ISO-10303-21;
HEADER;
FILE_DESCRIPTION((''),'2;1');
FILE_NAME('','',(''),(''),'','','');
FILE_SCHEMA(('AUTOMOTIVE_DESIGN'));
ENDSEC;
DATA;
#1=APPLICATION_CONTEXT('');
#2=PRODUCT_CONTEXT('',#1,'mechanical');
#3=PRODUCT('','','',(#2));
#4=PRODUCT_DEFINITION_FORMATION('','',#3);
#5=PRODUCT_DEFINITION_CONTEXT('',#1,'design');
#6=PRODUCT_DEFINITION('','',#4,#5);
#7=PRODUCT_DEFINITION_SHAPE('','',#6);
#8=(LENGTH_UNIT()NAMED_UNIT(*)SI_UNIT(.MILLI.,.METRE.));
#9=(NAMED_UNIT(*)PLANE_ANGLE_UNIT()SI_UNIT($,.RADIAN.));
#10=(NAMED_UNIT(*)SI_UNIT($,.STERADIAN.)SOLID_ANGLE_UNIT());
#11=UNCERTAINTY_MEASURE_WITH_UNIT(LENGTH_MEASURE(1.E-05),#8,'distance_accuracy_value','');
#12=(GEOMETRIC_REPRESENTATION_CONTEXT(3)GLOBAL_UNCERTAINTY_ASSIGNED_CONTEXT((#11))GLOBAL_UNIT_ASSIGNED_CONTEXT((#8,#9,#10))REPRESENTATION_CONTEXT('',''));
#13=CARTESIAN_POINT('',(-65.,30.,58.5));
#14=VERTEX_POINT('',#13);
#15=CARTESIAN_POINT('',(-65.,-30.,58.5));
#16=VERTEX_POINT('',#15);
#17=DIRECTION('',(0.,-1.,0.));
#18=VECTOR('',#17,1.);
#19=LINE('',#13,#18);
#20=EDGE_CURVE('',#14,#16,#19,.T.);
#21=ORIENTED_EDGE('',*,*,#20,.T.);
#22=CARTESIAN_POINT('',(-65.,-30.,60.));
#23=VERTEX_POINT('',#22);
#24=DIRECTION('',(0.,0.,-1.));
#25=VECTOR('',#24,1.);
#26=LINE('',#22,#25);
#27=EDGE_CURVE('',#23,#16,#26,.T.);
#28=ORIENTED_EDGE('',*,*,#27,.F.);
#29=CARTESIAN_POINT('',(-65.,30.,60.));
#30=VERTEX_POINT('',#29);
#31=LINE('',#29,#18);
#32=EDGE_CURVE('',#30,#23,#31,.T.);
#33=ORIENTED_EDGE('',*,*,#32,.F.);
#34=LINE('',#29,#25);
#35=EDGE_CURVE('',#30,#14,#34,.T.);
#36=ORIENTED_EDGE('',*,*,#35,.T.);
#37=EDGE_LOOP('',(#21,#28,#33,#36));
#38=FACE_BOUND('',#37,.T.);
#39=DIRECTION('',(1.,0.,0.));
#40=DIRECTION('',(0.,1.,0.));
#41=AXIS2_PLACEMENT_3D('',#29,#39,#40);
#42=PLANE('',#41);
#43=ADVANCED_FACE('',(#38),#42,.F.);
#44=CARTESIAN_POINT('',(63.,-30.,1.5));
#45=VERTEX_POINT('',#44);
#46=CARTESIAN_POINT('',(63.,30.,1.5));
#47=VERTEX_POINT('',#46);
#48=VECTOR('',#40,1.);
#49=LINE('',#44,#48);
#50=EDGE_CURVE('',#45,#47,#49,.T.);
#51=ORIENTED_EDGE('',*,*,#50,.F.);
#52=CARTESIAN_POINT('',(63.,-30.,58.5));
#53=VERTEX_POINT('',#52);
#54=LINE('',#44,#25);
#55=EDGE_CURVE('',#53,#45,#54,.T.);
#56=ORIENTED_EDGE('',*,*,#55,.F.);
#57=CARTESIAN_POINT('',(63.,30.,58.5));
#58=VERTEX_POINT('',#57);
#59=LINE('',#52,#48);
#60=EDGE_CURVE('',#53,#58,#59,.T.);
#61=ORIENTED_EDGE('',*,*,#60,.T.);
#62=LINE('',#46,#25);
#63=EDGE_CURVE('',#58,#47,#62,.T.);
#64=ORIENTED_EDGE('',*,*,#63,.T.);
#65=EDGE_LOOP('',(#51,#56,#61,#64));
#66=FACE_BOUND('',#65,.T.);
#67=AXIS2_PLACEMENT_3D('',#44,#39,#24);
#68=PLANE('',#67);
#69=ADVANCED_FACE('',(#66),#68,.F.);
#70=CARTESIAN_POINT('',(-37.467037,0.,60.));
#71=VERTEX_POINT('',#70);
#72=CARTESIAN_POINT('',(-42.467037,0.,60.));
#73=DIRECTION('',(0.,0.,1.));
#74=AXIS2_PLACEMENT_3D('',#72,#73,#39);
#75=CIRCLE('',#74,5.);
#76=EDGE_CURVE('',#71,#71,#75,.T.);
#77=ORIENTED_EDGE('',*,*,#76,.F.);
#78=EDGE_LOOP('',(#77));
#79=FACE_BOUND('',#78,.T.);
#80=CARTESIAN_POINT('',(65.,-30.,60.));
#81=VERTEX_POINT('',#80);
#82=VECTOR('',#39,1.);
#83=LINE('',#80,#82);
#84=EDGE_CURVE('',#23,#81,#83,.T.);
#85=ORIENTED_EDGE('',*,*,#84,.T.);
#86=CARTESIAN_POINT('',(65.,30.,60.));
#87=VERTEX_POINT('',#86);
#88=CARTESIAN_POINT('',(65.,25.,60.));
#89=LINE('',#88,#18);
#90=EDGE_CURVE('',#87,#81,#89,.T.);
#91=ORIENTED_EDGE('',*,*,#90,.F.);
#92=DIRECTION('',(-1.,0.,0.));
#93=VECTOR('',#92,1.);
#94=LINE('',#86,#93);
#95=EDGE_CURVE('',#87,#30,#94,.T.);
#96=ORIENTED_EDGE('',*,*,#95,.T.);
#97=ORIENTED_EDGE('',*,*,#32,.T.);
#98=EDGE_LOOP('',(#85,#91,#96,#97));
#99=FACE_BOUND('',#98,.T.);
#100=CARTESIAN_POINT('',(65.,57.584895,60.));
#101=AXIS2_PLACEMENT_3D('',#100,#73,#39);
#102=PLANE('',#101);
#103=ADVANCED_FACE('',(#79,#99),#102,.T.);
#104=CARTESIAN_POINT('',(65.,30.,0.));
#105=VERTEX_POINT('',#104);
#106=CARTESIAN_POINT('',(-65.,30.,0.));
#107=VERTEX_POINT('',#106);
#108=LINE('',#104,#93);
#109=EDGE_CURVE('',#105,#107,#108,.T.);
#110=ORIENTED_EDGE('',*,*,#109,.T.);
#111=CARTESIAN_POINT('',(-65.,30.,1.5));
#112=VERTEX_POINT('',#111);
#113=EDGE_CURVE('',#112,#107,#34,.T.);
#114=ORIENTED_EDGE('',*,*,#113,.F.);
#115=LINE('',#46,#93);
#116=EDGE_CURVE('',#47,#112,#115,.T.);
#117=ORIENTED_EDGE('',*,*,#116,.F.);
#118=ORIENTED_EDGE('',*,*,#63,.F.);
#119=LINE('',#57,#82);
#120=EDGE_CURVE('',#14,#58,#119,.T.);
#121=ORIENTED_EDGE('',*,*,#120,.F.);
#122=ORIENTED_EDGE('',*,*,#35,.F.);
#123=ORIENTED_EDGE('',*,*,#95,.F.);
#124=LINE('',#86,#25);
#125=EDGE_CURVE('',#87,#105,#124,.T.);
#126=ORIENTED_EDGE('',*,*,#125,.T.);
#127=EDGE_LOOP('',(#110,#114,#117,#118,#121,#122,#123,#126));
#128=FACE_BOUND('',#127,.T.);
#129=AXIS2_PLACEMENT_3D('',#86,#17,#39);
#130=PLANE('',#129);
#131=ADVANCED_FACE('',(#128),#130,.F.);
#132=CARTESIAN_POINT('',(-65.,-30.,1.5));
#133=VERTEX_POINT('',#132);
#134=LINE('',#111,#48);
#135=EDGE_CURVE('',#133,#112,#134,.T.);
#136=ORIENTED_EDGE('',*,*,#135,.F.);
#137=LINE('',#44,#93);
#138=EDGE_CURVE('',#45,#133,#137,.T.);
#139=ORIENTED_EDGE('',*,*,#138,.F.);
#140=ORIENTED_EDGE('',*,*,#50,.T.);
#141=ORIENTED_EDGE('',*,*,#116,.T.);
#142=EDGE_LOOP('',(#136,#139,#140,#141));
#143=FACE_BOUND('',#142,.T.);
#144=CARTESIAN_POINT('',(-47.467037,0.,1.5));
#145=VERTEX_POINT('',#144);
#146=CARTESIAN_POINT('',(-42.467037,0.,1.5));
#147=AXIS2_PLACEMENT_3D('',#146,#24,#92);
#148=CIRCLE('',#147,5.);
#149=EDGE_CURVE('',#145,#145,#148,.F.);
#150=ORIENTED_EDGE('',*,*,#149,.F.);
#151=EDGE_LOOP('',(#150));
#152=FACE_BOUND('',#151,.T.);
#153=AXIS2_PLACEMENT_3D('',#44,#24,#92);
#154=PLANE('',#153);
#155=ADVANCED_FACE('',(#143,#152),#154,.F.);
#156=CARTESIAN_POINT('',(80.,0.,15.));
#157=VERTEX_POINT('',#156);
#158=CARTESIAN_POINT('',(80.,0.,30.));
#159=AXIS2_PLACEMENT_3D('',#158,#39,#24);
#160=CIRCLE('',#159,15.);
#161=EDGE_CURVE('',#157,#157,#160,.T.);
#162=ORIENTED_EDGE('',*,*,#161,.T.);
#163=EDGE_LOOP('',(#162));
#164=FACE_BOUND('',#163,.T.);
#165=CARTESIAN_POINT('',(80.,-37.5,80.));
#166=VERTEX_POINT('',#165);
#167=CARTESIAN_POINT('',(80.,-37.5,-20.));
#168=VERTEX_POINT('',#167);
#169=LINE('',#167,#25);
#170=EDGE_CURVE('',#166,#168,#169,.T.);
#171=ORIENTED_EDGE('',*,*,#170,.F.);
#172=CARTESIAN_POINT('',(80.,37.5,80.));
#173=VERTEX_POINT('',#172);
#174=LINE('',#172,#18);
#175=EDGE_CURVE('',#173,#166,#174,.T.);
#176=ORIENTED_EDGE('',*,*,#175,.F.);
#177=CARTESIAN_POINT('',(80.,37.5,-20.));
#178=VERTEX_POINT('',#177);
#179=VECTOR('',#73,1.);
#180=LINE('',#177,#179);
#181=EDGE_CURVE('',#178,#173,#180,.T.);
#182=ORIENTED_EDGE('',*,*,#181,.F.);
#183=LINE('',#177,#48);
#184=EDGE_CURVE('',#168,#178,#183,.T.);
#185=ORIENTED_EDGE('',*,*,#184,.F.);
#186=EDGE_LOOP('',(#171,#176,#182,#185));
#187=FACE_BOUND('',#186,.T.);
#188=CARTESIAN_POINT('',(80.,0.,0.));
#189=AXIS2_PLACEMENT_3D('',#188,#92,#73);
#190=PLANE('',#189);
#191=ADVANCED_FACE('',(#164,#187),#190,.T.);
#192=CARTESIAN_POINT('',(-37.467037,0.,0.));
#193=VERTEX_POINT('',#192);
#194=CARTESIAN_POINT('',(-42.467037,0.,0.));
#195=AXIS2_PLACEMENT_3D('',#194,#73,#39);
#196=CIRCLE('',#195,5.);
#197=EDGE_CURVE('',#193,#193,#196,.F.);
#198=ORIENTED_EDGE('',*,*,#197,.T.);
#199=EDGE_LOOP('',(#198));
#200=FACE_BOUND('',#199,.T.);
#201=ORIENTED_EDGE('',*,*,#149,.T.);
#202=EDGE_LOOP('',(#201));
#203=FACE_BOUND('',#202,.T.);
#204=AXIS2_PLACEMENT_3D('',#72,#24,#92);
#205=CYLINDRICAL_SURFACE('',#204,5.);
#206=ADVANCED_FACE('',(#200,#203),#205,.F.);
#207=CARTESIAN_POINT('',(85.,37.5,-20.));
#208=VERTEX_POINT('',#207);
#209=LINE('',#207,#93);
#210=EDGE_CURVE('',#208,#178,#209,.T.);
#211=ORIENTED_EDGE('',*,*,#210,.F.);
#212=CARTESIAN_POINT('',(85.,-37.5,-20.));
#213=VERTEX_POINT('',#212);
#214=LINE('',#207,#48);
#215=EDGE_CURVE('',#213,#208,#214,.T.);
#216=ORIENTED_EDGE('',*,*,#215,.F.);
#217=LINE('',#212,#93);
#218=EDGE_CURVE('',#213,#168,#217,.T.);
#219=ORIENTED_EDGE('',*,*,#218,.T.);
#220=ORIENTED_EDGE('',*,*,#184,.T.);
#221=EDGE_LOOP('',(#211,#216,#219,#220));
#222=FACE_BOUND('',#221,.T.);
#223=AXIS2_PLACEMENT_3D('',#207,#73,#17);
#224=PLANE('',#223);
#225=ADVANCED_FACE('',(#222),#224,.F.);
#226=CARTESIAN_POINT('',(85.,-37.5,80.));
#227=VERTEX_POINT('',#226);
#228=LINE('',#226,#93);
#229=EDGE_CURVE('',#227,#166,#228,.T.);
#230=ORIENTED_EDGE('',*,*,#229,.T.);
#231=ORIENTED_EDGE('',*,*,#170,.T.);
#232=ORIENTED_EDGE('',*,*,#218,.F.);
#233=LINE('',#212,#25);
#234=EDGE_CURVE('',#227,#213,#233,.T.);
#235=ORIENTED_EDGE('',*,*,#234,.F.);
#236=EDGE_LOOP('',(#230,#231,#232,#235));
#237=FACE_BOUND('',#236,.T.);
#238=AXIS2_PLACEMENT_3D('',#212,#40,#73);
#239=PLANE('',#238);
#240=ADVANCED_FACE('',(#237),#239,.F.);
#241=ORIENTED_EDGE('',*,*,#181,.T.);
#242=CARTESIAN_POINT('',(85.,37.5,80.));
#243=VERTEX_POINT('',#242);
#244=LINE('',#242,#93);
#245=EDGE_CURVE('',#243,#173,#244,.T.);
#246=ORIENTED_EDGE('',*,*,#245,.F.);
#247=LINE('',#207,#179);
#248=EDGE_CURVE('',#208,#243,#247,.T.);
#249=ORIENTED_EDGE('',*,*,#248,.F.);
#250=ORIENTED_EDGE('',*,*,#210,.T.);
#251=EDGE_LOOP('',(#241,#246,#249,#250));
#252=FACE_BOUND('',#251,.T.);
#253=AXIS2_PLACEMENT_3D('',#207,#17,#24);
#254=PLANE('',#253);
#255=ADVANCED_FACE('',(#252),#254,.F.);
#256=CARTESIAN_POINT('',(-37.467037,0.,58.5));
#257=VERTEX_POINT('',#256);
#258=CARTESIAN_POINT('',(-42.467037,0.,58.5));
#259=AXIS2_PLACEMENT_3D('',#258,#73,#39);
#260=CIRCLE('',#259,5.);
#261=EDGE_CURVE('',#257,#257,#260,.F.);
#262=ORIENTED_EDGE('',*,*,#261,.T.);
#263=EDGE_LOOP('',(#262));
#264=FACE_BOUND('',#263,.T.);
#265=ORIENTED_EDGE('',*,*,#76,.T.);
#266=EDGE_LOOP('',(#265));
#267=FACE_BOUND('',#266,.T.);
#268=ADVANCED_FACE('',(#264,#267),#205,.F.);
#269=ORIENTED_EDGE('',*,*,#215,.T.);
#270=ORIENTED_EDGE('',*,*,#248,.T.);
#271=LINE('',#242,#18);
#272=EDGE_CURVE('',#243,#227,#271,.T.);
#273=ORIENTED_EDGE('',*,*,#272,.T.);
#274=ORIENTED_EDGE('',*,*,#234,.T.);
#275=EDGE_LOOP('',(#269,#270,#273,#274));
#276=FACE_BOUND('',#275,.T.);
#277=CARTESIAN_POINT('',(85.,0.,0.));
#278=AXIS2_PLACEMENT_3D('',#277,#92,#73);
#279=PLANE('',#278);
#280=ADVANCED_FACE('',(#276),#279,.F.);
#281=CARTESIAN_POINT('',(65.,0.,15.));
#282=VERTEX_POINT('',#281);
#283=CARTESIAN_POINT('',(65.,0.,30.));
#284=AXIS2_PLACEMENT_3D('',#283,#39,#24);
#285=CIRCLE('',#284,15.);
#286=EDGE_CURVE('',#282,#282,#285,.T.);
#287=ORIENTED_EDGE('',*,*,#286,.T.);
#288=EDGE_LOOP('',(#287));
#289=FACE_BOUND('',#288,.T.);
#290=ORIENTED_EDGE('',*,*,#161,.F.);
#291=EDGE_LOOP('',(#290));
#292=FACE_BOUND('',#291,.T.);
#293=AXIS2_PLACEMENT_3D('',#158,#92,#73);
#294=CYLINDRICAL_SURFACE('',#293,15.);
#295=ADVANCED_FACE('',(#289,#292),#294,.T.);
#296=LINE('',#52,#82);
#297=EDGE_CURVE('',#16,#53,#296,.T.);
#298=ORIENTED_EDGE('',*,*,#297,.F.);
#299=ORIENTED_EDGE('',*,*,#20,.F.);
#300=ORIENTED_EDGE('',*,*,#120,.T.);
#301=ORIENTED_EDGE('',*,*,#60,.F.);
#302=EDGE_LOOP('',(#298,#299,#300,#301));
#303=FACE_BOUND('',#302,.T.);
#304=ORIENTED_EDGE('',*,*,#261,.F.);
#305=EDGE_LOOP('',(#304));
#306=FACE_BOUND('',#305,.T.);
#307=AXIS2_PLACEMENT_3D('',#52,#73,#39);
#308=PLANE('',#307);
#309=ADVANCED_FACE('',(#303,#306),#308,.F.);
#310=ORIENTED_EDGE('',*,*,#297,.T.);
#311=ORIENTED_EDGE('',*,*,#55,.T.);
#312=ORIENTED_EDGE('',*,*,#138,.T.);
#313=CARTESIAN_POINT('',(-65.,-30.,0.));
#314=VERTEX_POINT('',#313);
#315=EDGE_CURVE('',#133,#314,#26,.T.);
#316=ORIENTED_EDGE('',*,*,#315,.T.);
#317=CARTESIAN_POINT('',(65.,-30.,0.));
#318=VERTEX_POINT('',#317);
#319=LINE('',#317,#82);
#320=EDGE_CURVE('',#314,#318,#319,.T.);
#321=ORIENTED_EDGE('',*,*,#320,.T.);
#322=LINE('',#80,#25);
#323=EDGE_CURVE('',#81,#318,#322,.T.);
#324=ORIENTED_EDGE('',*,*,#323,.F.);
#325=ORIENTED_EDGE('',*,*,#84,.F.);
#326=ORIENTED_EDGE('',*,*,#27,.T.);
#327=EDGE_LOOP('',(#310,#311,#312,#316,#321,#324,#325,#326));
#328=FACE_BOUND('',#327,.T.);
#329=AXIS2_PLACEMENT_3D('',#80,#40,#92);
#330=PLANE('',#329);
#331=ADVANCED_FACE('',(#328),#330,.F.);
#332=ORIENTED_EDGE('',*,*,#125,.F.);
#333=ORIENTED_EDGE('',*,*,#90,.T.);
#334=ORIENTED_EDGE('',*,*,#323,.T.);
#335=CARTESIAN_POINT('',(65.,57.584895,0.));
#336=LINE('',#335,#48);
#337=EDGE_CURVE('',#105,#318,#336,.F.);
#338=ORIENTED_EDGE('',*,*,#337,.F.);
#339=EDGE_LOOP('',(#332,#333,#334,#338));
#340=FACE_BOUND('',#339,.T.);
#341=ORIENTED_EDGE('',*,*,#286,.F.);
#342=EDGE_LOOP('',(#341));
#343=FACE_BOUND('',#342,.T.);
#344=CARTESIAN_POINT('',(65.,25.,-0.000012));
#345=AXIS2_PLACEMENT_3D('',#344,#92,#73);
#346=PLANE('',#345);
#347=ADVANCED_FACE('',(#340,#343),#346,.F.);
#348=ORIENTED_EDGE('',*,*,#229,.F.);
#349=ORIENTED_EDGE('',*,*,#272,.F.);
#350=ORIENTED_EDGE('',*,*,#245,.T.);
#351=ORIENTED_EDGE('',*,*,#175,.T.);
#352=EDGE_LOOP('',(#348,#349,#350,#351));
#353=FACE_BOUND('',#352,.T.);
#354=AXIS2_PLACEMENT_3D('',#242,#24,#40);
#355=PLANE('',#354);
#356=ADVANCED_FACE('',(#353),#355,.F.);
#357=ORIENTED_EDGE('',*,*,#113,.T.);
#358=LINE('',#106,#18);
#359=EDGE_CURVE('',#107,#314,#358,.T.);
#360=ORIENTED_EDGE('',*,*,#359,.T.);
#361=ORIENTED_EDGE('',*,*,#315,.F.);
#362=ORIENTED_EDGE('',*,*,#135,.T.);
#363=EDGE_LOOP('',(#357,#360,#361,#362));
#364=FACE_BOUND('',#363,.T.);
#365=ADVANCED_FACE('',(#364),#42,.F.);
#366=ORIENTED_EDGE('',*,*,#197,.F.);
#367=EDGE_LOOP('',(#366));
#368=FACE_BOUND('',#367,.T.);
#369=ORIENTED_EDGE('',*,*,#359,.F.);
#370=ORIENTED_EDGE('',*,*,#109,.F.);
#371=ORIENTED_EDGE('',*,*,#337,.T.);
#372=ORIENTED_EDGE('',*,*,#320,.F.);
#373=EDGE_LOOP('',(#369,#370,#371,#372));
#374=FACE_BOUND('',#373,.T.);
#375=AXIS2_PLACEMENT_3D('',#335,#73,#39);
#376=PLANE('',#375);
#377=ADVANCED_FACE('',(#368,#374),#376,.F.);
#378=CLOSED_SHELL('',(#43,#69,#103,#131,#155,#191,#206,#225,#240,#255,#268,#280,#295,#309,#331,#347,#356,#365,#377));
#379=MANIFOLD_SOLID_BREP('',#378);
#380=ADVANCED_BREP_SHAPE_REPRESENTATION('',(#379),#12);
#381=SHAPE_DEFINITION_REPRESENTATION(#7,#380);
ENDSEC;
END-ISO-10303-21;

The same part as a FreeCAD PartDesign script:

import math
import FreeCAD as App
import Part
import Sketcher

V = App.Vector
Q = App.Units.Quantity

doc = App.newDocument("Part")
body = doc.addObject("PartDesign::Body", "Body")

# Sketch on XY plane
sketch1 = doc.addObject("Sketcher::SketchObject", "Sketch")
body.addObject(sketch1)
sketch1.AttachmentSupport = (doc.XY_Plane, [""])
sketch1.MapMode = "FlatFace"
sketch1.addGeometry([
    Part.LineSegment(V(65, 30, 0), V(-65, 30, 0)),  # 0
    Part.LineSegment(V(-65, 30, 0), V(-65, -30, 0)),  # 1
    Part.LineSegment(V(-65, -30, 0), V(65, -30, 0)),  # 2
    Part.ArcOfCircle(Part.Circle(V(65, 57.584895, 0), V(0, 0, 1), 87.584895), math.radians(-90), math.radians(-41.107599)),  # 3
    Part.ArcOfCircle(Part.Circle(V(65, -57.584895, 0), V(0, 0, 1), 87.584895), math.radians(41.107599), math.radians(90)),  # 4
], False)
sketch1.addConstraint([
    Sketcher.Constraint("Coincident", 0, 2, 1, 1),
    Sketcher.Constraint("Coincident", 1, 2, 2, 1),
    Sketcher.Constraint("Tangent", 2, 2, 3, 1),
    Sketcher.Constraint("Coincident", 3, 2, 4, 1),
    Sketcher.Constraint("Tangent", 4, 2, 0, 1),
    Sketcher.Constraint("Horizontal", 0),
    Sketcher.Constraint("Vertical", 1),
    Sketcher.Constraint("Horizontal", 2),
    Sketcher.Constraint("Equal", 3, 4),
    Sketcher.Constraint("Symmetric", 0, 2, 2, 2, -1, 1),
    Sketcher.Constraint("PointOnObject", 3, 2, -1),
    Sketcher.Constraint("DistanceX", 0, 2, 0, 1, Q("130 mm")),
    Sketcher.Constraint("DistanceY", 1, 2, 1, 1, Q("60 mm")),
    Sketcher.Constraint("Radius", 3, Q("87.584895 mm")),
])
pad1 = doc.addObject("PartDesign::Pad", "Pad")
body.addObject(pad1)
pad1.Profile = sketch1
pad1.Length = 60

# Sketch on XY plane
sketch2 = doc.addObject("Sketcher::SketchObject", "Sketch001")
body.addObject(sketch2)
sketch2.AttachmentSupport = (doc.XY_Plane, [""])
sketch2.MapMode = "FlatFace"
sketch2.addGeometry([
    Part.LineSegment(V(65, 25, 0), V(65, -25, 0)),
    Part.ArcOfCircle(Part.Circle(V(65, 18.451597, 0), V(0, 0, 1), 43.451597), math.radians(-90), math.radians(-25.128332)),
    Part.ArcOfCircle(Part.Circle(V(65, -18.451597, 0), V(0, 0, 1), 43.451597), math.radians(25.128332), math.radians(90)),
], False)
sketch2.addConstraint([
    Sketcher.Constraint("Coincident", 0, 2, 1, 1),
    Sketcher.Constraint("Coincident", 1, 2, 2, 1),
    Sketcher.Constraint("Coincident", 2, 2, 0, 1),
    Sketcher.Constraint("Vertical", 0),
    Sketcher.Constraint("Equal", 1, 2),
    Sketcher.Constraint("Symmetric", 1, 3, 2, 3, -1),
    Sketcher.Constraint("Vertical", 2, 3, 0, 2),
    Sketcher.Constraint("DistanceY", 0, 2, 0, 1, Q("50 mm")),
    Sketcher.Constraint("DistanceX", -1, 1, 1, 3, Q("65 mm")),
    Sketcher.Constraint("Radius", 1, Q("43.451597 mm")),
])
pocket1 = doc.addObject("PartDesign::Pocket", "Pocket")
body.addObject(pocket1)
pocket1.Profile = sketch2
pocket1.Type = "ThroughAll"
pocket1.Midplane = True

# Sketch on XZ plane
sketch3 = doc.addObject("Sketcher::SketchObject", "Sketch002")
body.addObject(sketch3)
sketch3.AttachmentSupport = (doc.XZ_Plane, [""])
sketch3.MapMode = "FlatFace"
sketch3.addGeometry([
    Part.LineSegment(V(-63, 1.5, 0), V(-63, 58.5, 0)),
    Part.LineSegment(V(-63, 58.5, 0), V(63, 58.5, 0)),
    Part.LineSegment(V(63, 58.5, 0), V(63, 1.5, 0)),
    Part.LineSegment(V(63, 1.5, 0), V(-63, 1.5, 0)),
], False)
sketch3.addConstraint([
    Sketcher.Constraint("Coincident", 0, 2, 1, 1),
    Sketcher.Constraint("Coincident", 1, 2, 2, 1),
    Sketcher.Constraint("Coincident", 2, 2, 3, 1),
    Sketcher.Constraint("Coincident", 3, 2, 0, 1),
    Sketcher.Constraint("Vertical", 0),
    Sketcher.Constraint("Horizontal", 1),
    Sketcher.Constraint("Vertical", 2),
    Sketcher.Constraint("Horizontal", 3),
    Sketcher.Constraint("DistanceX", 1, 1, 1, 2, Q("126 mm")),
    Sketcher.Constraint("DistanceY", 0, 1, 0, 2, Q("57 mm")),
    Sketcher.Constraint("DistanceX", 0, 2, -1, 1, Q("63 mm")),
    Sketcher.Constraint("DistanceY", -1, 1, 0, 2, Q("58.5 mm")),
])
pocket2 = doc.addObject("PartDesign::Pocket", "Pocket001")
body.addObject(pocket2)
pocket2.Profile = sketch3
pocket2.Type = "ThroughAll"
pocket2.Midplane = True

# Sketch on YZ plane
sketch4 = doc.addObject("Sketcher::SketchObject", "Sketch003")
body.addObject(sketch4)
sketch4.AttachmentSupport = (doc.YZ_Plane, [""])
sketch4.MapMode = "FlatFace"
sketch4.AttachmentOffset = App.Placement(V(0, 0, -63), App.Rotation())
sketch4.addGeometry([
    Part.LineSegment(V(30, 58.5, 0), V(-30, 58.5, 0)),
    Part.LineSegment(V(-30, 58.5, 0), V(-30, 1.5, 0)),
    Part.LineSegment(V(-30, 1.5, 0), V(30, 1.5, 0)),
    Part.LineSegment(V(30, 1.5, 0), V(30, 58.5, 0)),
], False)
sketch4.addConstraint([
    Sketcher.Constraint("Coincident", 0, 2, 1, 1),
    Sketcher.Constraint("Coincident", 1, 2, 2, 1),
    Sketcher.Constraint("Coincident", 2, 2, 3, 1),
    Sketcher.Constraint("Coincident", 3, 2, 0, 1),
    Sketcher.Constraint("Horizontal", 0),
    Sketcher.Constraint("Vertical", 1),
    Sketcher.Constraint("Horizontal", 2),
    Sketcher.Constraint("Vertical", 3),
    Sketcher.Constraint("DistanceX", 0, 2, 0, 1, Q("60 mm")),
    Sketcher.Constraint("DistanceY", 1, 2, 1, 1, Q("57 mm")),
    Sketcher.Constraint("DistanceX", 0, 2, -1, 1, Q("30 mm")),
    Sketcher.Constraint("DistanceY", -1, 1, 0, 2, Q("58.5 mm")),
])
pocket3 = doc.addObject("PartDesign::Pocket", "Pocket002")
body.addObject(pocket3)
pocket3.Profile = sketch4
pocket3.Length = 57

# Sketch on XY plane
sketch5 = doc.addObject("Sketcher::SketchObject", "Sketch004")
body.addObject(sketch5)
sketch5.AttachmentSupport = (doc.XY_Plane, [""])
sketch5.MapMode = "FlatFace"
sketch5.addGeometry(Part.Circle(V(-42.467037, 0, 0), V(0, 0, 1), 5), False)
sketch5.addConstraint([
    Sketcher.Constraint("PointOnObject", 0, 3, -1),
    Sketcher.Constraint("Diameter", 0, Q("10 mm")),
    Sketcher.Constraint("DistanceX", 0, 3, -1, 1, Q("42.467037 mm")),
])
pocket4 = doc.addObject("PartDesign::Pocket", "Pocket003")
body.addObject(pocket4)
pocket4.Profile = sketch5
pocket4.Type = "ThroughAll"
pocket4.Midplane = True

# Sketch on XZ plane
sketch6 = doc.addObject("Sketcher::SketchObject", "Sketch005")
body.addObject(sketch6)
sketch6.AttachmentSupport = (doc.XZ_Plane, [""])
sketch6.MapMode = "FlatFace"
sketch6.addGeometry([
    Part.LineSegment(V(65, 0, 0), V(65, 60, 0)),
    Part.LineSegment(V(65, 60, 0), V(130.993134, 60, 0)),
    Part.LineSegment(V(130.993134, 60, 0), V(130.993134, 0, 0)),
    Part.LineSegment(V(130.993134, 0, 0), V(65, 0, 0)),
], False)
sketch6.addConstraint([
    Sketcher.Constraint("Coincident", 0, 2, 1, 1),
    Sketcher.Constraint("Coincident", 1, 2, 2, 1),
    Sketcher.Constraint("Coincident", 2, 2, 3, 1),
    Sketcher.Constraint("Coincident", 3, 2, 0, 1),
    Sketcher.Constraint("Vertical", 0),
    Sketcher.Constraint("Horizontal", 1),
    Sketcher.Constraint("Vertical", 2),
    Sketcher.Constraint("Horizontal", 3),
    Sketcher.Constraint("PointOnObject", 2, 2, -1),
    Sketcher.Constraint("DistanceY", 0, 1, 0, 2, Q("60 mm")),
    Sketcher.Constraint("DistanceX", -1, 1, 0, 2, Q("65 mm")),
    Sketcher.Constraint("DistanceX", 1, 1, 1, 2, Q("65.993134 mm")),
])
pocket5 = doc.addObject("PartDesign::Pocket", "Pocket004")
body.addObject(pocket5)
pocket5.Profile = sketch6
pocket5.Type = "ThroughAll"
pocket5.Midplane = True

# Sketch on YZ plane
sketch7 = doc.addObject("Sketcher::SketchObject", "Sketch006")
body.addObject(sketch7)
sketch7.AttachmentSupport = (doc.YZ_Plane, [""])
sketch7.MapMode = "FlatFace"
sketch7.AttachmentOffset = App.Placement(V(0, 0, 65), App.Rotation())
sketch7.addGeometry(Part.Circle(V(0, 30, 0), V(0, 0, 1), 15), False)
sketch7.addConstraint([
    Sketcher.Constraint("PointOnObject", 0, 3, -2),
    Sketcher.Constraint("Diameter", 0, Q("30 mm")),
    Sketcher.Constraint("DistanceY", -1, 1, 0, 3, Q("30 mm")),
])
pad2 = doc.addObject("PartDesign::Pad", "Pad001")
body.addObject(pad2)
pad2.Profile = sketch7
pad2.Length = 15

# Sketch on YZ plane
sketch8 = doc.addObject("Sketcher::SketchObject", "Sketch007")
body.addObject(sketch8)
sketch8.AttachmentSupport = (doc.YZ_Plane, [""])
sketch8.MapMode = "FlatFace"
sketch8.AttachmentOffset = App.Placement(V(0, 0, 80), App.Rotation())
sketch8.addGeometry([
    Part.LineSegment(V(37.5, 80, 0), V(-37.5, 80, 0)),
    Part.LineSegment(V(-37.5, 80, 0), V(-37.5, -20, 0)),
    Part.LineSegment(V(-37.5, -20, 0), V(37.5, -20, 0)),
    Part.LineSegment(V(37.5, -20, 0), V(37.5, 80, 0)),
], False)
sketch8.addConstraint([
    Sketcher.Constraint("Coincident", 0, 2, 1, 1),
    Sketcher.Constraint("Coincident", 1, 2, 2, 1),
    Sketcher.Constraint("Coincident", 2, 2, 3, 1),
    Sketcher.Constraint("Coincident", 3, 2, 0, 1),
    Sketcher.Constraint("Horizontal", 0),
    Sketcher.Constraint("Vertical", 1),
    Sketcher.Constraint("Horizontal", 2),
    Sketcher.Constraint("Vertical", 3),
    Sketcher.Constraint("DistanceX", 0, 2, 0, 1, Q("75 mm")),
    Sketcher.Constraint("DistanceY", 1, 2, 1, 1, Q("100 mm")),
    Sketcher.Constraint("DistanceY", -1, 1, 0, 2, Q("80 mm")),
    Sketcher.Constraint("DistanceX", 0, 2, -1, 1, Q("37.5 mm")),
])
pad3 = doc.addObject("PartDesign::Pad", "Pad002")
body.addObject(pad3)
pad3.Profile = sketch8
pad3.Length = 5

doc.recompute()
